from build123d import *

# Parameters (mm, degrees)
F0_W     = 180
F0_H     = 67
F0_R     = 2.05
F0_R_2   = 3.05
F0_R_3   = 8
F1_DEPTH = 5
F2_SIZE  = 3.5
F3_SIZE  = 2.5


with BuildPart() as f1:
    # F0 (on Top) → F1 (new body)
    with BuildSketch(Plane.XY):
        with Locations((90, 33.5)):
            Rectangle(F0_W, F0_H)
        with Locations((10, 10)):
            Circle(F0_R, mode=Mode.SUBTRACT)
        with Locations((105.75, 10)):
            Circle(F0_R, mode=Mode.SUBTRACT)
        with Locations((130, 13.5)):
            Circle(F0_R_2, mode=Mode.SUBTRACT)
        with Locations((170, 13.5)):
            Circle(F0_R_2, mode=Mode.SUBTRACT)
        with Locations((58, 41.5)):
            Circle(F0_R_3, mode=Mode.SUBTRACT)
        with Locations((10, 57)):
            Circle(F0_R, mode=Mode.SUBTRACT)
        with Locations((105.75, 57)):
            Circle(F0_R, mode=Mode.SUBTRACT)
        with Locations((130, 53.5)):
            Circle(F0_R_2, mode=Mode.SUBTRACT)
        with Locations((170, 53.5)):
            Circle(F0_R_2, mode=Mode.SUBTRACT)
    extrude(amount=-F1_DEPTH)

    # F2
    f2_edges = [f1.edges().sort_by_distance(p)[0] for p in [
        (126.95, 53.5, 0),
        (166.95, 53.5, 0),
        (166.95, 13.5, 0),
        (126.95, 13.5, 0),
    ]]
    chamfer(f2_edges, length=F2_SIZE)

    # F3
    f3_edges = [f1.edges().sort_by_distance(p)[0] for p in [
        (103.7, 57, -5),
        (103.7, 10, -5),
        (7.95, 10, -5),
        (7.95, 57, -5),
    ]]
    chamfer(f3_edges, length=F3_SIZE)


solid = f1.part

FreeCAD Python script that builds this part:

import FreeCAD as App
import Part
import Sketcher
from FreeCAD import Vector
Q = App.Units.Quantity


def edges_at(feature, points):
    """Names of the edges that pass closest to the given points."""
    edges = feature.Shape.Edges
    near = lambda p: min(range(len(edges)), key=lambda i: edges[i].distToShape(Part.Vertex(*p))[0])
    return sorted({f"Edge{near(p) + 1}" for p in points})

doc = App.newDocument("Part")
body = doc.addObject("PartDesign::Body", "Body")

sketch1 = body.newObject("Sketcher::SketchObject", "Sketch")
sketch1.AttachmentSupport = (doc.getObject("XY_Plane"), [""])
sketch1.MapMode = "FlatFace"
sketch1.addGeometry(Part.LineSegment(Vector(0, 67, 0), Vector(0, 0, 0)), False)
sketch1.addGeometry(Part.LineSegment(Vector(0, 0, 0), Vector(180, 0, 0)), False)
sketch1.addGeometry(Part.LineSegment(Vector(180, 0, 0), Vector(180, 67, 0)), False)
sketch1.addGeometry(Part.LineSegment(Vector(180, 67, 0), Vector(0, 67, 0)), False)
sketch1.addGeometry(Part.Circle(Vector(10, 10, 0), Vector(0, 0, 1), 2.05), False)
sketch1.addGeometry(Part.Circle(Vector(105.75, 10, 0), Vector(0, 0, 1), 2.05), False)
sketch1.addGeometry(Part.Circle(Vector(130, 13.5, 0), Vector(0, 0, 1), 3.05), False)
sketch1.addGeometry(Part.Circle(Vector(170, 13.5, 0), Vector(0, 0, 1), 3.05), False)
sketch1.addGeometry(Part.Circle(Vector(58, 41.5, 0), Vector(0, 0, 1), 8), False)
sketch1.addGeometry(Part.Circle(Vector(10, 57, 0), Vector(0, 0, 1), 2.05), False)
sketch1.addGeometry(Part.Circle(Vector(105.75, 57, 0), Vector(0, 0, 1), 2.05), False)
sketch1.addGeometry(Part.Circle(Vector(130, 53.5, 0), Vector(0, 0, 1), 3.05), False)
sketch1.addGeometry(Part.Circle(Vector(170, 53.5, 0), Vector(0, 0, 1), 3.05), False)
sketch1.addConstraint(Sketcher.Constraint("Coincident", 0, 2, 1, 1))
sketch1.addConstraint(Sketcher.Constraint("Coincident", 1, 2, 2, 1))
sketch1.addConstraint(Sketcher.Constraint("Coincident", 2, 2, 3, 1))
sketch1.addConstraint(Sketcher.Constraint("Coincident", 3, 2, 0, 1))
sketch1.addConstraint(Sketcher.Constraint("Vertical", 0))
sketch1.addConstraint(Sketcher.Constraint("Horizontal", 1))
sketch1.addConstraint(Sketcher.Constraint("Vertical", 2))
sketch1.addConstraint(Sketcher.Constraint("Horizontal", 3))
sketch1.addConstraint(Sketcher.Constraint("Coincident", 0, 2, -1, 1))
sketch1.addConstraint(Sketcher.Constraint("Equal", 4, 5))
sketch1.addConstraint(Sketcher.Constraint("Equal", 6, 7))
sketch1.addConstraint(Sketcher.Constraint("Equal", 5, 9))
sketch1.addConstraint(Sketcher.Constraint("Equal", 9, 10))
sketch1.addConstraint(Sketcher.Constraint("Equal", 7, 11))
sketch1.addConstraint(Sketcher.Constraint("Equal", 11, 12))
sketch1.addConstraint(Sketcher.Constraint("Horizontal", 4, 3, 5, 3))
sketch1.addConstraint(Sketcher.Constraint("Horizontal", 6, 3, 7, 3))
sketch1.addConstraint(Sketcher.Constraint("Horizontal", 9, 3, 10, 3))
sketch1.addConstraint(Sketcher.Constraint("Horizontal", 11, 3, 12, 3))
sketch1.addConstraint(Sketcher.Constraint("Vertical", 4, 3, 9, 3))
sketch1.addConstraint(Sketcher.Constraint("Vertical", 5, 3, 10, 3))
sketch1.addConstraint(Sketcher.Constraint("Vertical", 6, 3, 11, 3))
sketch1.addConstraint(Sketcher.Constraint("Vertical", 7, 3, 12, 3))
sketch1.addConstraint(Sketcher.Constraint("Diameter", 8, Q("16 mm")))
sketch1.addConstraint(Sketcher.Constraint("Diameter", 4, Q("4.1 mm")))
sketch1.addConstraint(Sketcher.Constraint("Diameter", 6, Q("6.1 mm")))
sketch1.addConstraint(Sketcher.Constraint("DistanceX", 1, 1, 1, 2, Q("180 mm")))
sketch1.addConstraint(Sketcher.Constraint("DistanceY", 0, 2, 0, 1, Q("67 mm")))
sketch1.addConstraint(Sketcher.Constraint("DistanceX", -1, 1, 4, 3, Q("10 mm")))
sketch1.addConstraint(Sketcher.Constraint("DistanceY", -1, 1, 4, 3, Q("10 mm")))
sketch1.addConstraint(Sketcher.Constraint("DistanceX", -1, 1, 6, 3, Q("130 mm")))
sketch1.addConstraint(Sketcher.Constraint("DistanceX", -1, 1, 7, 3, Q("170 mm")))
sketch1.addConstraint(Sketcher.Constraint("DistanceX", -1, 1, 8, 3, Q("58 mm")))
sketch1.addConstraint(Sketcher.Constraint("DistanceY", -1, 1, 9, 3, Q("57 mm")))
sketch1.addConstraint(Sketcher.Constraint("DistanceY", 6, 3, 8, 3, Q("28 mm")))
sketch1.addConstraint(Sketcher.Constraint("DistanceY", 6, 3, 11, 3, Q("40 mm")))
sketch1.addConstraint(Sketcher.Constraint("DistanceY", -1, 1, 6, 3, Q("13.5 mm")))
sketch1.addConstraint(Sketcher.Constraint("DistanceX", -1, 1, 5, 3, Q("105.75 mm")))
pad1 = body.newObject("PartDesign::Pad", "Pad")
pad1.Profile = sketch1
pad1.Length = 5
pad1.Reversed = True
doc.recompute()

chamfer = body.newObject("PartDesign::Chamfer", "Chamfer")
chamfer.Base = (pad1, edges_at(pad1, [
    (126.95, 53.5, 0),
    (166.95, 53.5, 0),
    (166.95, 13.5, 0),
    (126.95, 13.5, 0),
]))
chamfer.Size = 3.5
doc.recompute()

chamfer2 = body.newObject("PartDesign::Chamfer", "Chamfer001")
chamfer2.Base = (chamfer, edges_at(chamfer, [
    (103.7, 57, -5),
    (103.7, 10, -5),
    (7.95, 10, -5),
    (7.95, 57, -5),
]))
chamfer2.Size = 2.5

doc.recompute()
